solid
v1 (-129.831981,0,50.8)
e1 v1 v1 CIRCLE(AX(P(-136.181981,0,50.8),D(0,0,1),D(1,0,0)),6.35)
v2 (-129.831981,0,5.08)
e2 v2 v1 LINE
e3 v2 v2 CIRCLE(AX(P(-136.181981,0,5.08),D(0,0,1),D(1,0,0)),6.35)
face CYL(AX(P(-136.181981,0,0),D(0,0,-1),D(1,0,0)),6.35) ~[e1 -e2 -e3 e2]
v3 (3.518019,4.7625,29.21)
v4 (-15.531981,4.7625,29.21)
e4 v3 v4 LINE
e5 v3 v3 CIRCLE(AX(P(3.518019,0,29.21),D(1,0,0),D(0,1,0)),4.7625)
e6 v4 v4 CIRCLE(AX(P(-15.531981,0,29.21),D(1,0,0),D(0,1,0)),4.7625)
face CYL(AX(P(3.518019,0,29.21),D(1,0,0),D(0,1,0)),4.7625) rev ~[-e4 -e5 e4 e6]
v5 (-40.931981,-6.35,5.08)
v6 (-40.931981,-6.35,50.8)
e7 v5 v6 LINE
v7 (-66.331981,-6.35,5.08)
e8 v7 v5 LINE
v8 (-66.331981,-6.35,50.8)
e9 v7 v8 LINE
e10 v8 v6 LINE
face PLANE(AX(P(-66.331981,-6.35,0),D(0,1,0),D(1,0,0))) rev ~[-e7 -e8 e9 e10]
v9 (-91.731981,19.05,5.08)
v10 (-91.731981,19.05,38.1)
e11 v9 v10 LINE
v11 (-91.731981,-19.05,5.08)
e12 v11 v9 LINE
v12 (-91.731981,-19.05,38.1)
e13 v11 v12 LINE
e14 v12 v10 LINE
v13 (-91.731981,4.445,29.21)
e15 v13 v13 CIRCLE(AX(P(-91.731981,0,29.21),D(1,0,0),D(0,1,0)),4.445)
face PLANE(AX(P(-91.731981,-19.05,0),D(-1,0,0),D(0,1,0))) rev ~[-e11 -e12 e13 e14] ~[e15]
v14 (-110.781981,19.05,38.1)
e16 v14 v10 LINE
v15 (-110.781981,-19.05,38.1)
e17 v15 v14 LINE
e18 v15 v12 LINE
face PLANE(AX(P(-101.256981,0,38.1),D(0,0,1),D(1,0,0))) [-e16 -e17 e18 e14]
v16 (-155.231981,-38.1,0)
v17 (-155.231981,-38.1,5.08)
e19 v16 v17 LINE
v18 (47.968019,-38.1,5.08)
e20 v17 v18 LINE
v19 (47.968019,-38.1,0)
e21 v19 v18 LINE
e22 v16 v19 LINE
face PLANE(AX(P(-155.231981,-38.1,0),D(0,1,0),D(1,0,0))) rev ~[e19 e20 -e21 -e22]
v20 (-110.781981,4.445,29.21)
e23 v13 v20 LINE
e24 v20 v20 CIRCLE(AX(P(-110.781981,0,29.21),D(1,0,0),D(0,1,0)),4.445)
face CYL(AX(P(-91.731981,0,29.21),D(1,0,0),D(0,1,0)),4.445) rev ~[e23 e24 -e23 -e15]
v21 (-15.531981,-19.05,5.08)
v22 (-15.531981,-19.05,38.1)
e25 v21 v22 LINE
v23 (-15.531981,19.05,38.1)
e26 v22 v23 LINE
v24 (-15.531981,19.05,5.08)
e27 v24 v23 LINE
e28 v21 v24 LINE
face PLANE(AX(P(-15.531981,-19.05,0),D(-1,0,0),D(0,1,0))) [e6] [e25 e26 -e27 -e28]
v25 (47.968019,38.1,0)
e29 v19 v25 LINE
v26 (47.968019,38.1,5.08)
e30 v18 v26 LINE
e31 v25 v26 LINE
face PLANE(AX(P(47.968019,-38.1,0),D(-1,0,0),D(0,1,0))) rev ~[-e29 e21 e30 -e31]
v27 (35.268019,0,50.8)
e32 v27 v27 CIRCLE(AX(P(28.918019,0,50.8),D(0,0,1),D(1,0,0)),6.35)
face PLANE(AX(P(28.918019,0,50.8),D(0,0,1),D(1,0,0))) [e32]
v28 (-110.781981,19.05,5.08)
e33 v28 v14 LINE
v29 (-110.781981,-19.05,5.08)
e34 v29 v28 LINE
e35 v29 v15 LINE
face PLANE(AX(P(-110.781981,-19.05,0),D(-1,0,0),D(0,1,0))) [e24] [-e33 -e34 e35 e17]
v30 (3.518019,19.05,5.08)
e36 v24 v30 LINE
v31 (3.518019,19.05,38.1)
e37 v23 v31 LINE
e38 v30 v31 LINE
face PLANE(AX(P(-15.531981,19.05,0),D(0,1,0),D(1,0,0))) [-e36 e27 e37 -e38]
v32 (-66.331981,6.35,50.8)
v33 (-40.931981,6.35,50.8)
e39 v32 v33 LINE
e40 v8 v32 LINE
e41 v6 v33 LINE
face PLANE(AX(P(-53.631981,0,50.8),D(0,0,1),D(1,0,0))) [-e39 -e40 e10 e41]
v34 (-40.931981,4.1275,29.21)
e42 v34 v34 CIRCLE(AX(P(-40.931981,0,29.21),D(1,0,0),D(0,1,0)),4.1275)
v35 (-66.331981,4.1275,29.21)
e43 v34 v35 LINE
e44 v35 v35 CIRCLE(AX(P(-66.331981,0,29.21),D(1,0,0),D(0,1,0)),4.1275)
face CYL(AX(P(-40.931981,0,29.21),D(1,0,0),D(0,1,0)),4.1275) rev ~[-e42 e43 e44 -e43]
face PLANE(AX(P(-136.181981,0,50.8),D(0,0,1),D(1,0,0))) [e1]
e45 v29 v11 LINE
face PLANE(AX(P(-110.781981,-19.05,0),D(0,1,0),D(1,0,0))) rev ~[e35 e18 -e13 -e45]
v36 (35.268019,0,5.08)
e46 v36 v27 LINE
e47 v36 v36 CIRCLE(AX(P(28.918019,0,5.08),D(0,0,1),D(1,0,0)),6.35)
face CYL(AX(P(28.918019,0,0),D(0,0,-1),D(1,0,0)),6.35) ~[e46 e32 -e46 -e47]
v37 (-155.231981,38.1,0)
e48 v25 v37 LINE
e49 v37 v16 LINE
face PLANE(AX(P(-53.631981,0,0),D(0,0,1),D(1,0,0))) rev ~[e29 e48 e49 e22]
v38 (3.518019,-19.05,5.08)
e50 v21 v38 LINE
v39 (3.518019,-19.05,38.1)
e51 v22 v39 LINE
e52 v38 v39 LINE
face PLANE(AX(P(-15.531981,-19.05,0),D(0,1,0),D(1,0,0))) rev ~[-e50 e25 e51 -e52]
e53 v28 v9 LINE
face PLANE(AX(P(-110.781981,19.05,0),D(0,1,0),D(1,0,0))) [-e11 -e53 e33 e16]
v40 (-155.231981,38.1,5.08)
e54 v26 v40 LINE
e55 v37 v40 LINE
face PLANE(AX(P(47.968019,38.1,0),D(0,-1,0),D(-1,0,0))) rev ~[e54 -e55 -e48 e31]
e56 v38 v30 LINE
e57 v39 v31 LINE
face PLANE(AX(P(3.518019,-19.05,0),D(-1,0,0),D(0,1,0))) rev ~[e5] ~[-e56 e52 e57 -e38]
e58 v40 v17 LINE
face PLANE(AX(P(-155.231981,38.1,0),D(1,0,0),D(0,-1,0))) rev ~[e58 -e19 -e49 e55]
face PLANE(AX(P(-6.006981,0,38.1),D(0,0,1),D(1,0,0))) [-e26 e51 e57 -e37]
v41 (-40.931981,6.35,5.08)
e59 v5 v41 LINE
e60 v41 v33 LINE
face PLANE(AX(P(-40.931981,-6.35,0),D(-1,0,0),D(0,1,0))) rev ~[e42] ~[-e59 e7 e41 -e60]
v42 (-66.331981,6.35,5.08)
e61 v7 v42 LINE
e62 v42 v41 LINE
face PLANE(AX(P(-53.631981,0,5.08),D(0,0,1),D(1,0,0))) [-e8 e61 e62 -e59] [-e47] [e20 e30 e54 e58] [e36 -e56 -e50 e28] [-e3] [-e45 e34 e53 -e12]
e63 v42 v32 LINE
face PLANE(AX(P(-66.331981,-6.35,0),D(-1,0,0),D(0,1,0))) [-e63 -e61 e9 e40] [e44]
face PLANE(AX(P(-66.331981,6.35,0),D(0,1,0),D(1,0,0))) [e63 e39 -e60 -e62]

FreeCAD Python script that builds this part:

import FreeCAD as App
import Part
import Sketcher

V = App.Vector
Q = App.Units.Quantity


def add_polygon(sketch, points):
    """Adds a closed chain of lines whose ends are joined by coincident constraints."""
    first, n = sketch.GeometryCount, len(points)
    for a, b in zip(points, points[1:] + points[:1]):
        sketch.addGeometry(Part.LineSegment(App.Vector(*a, 0), App.Vector(*b, 0)), False)
    for i in range(n):
        sketch.addConstraint(Sketcher.Constraint("Coincident", first + i, 2, first + (i + 1) % n, 1))

doc = App.newDocument("Part")
body = doc.addObject("PartDesign::Body", "Body")

sketch1 = body.newObject("Sketcher::SketchObject", "Sketch")
sketch1.AttachmentSupport = (doc.getObject("XY_Plane"), [""])
sketch1.MapMode = "FlatFace"
add_polygon(sketch1, [(-66, 6), (-66, -6), (-41, -6), (-41, 6)])
sketch1.addConstraint(Sketcher.Constraint("Vertical", 0))
sketch1.addConstraint(Sketcher.Constraint("Horizontal", 1))
sketch1.addConstraint(Sketcher.Constraint("Vertical", 2))
sketch1.addConstraint(Sketcher.Constraint("Horizontal", 3))
sketch1.addConstraint(Sketcher.Constraint("DistanceX", 1, 1, 1, 2, Q("1 in")))
sketch1.addConstraint(Sketcher.Constraint("DistanceY", 0, 2, 0, 1, Q("0.5 in")))
sketch1.addConstraint(Sketcher.Constraint("DistanceY", 0, 2, -1, 1, Q("0.25 in")))
sketch1.addConstraint(Sketcher.Constraint("DistanceX", 0, 2, -1, 1, 66.331981))
pad1 = body.newObject("PartDesign::Pad", "Pad")
pad1.Profile = sketch1
pad1.Length = Q("2 in")
body2 = doc.addObject("PartDesign::Body", "Body001")

sketch2 = body2.newObject("Sketcher::SketchObject", "Sketch001")
sketch2.AttachmentSupport = (doc.getObject("XY_Plane001"), [""])
sketch2.MapMode = "FlatFace"
sketch2.addGeometry(Part.Circle(V(29, 0, 0), V(0, 0, 1), 6), False)
sketch2.addConstraint(Sketcher.Constraint("PointOnObject", 0, 3, -1))
sketch2.addConstraint(Sketcher.Constraint("Diameter", 0, Q("0.5 in")))
sketch2.addConstraint(Sketcher.Constraint("DistanceX", -1, 1, 0, 3, 28.918019))
pad2 = body2.newObject("PartDesign::Pad", "Pad001")
pad2.Profile = sketch2
pad2.Length = Q("2 in")
body3 = doc.addObject("PartDesign::Body", "Body002")

sketch3 = body3.newObject("Sketcher::SketchObject", "Sketch002")
sketch3.AttachmentSupport = (doc.getObject("XY_Plane002"), [""])
sketch3.MapMode = "FlatFace"
sketch3.addGeometry(Part.Circle(V(-136, 0, 0), V(0, 0, 1), 6), False)
sketch3.addConstraint(Sketcher.Constraint("PointOnObject", 0, 3, -1))
sketch3.addConstraint(Sketcher.Constraint("Diameter", 0, Q("0.5 in")))
sketch3.addConstraint(Sketcher.Constraint("DistanceX", 0, 3, -1, 1, 136.181981))
pad3 = body3.newObject("PartDesign::Pad", "Pad002")
pad3.Profile = sketch3
pad3.Length = Q("2 in")
body4 = doc.addObject("PartDesign::Body", "Body003")

sketch4 = body4.newObject("Sketcher::SketchObject", "Sketch003")
sketch4.AttachmentSupport = (doc.getObject("XY_Plane003"), [""])
sketch4.MapMode = "FlatFace"
add_polygon(sketch4, [(-111, 19), (-111, -19), (-92, -19), (-92, 19)])
sketch4.addConstraint(Sketcher.Constraint("Vertical", 0))
sketch4.addConstraint(Sketcher.Constraint("Horizontal", 1))
sketch4.addConstraint(Sketcher.Constraint("Vertical", 2))
sketch4.addConstraint(Sketcher.Constraint("Horizontal", 3))
sketch4.addConstraint(Sketcher.Constraint("DistanceY", 0, 2, 0, 1, Q("1.5 in")))
sketch4.addConstraint(Sketcher.Constraint("DistanceX", 1, 1, 1, 2, Q("0.75 in")))
sketch4.addConstraint(Sketcher.Constraint("DistanceY", 0, 2, -1, 1, Q("0.75 in")))
sketch4.addConstraint(Sketcher.Constraint("DistanceX", 0, 2, -1, 1, 110.781981))
pad4 = body4.newObject("PartDesign::Pad", "Pad003")
pad4.Profile = sketch4
pad4.Length = Q("1.5 in")
body5 = doc.addObject("PartDesign::Body", "Body004")

sketch5 = body5.newObject("Sketcher::SketchObject", "Sketch004")
sketch5.AttachmentSupport = (doc.getObject("XY_Plane004"), [""])
sketch5.MapMode = "FlatFace"
add_polygon(sketch5, [(-16, 19), (-16, -19), (4, -19), (4, 19)])
sketch5.addConstraint(Sketcher.Constraint("Vertical", 0))
sketch5.addConstraint(Sketcher.Constraint("Horizontal", 1))
sketch5.addConstraint(Sketcher.Constraint("Vertical", 2))
sketch5.addConstraint(Sketcher.Constraint("Horizontal", 3))
sketch5.addConstraint(Sketcher.Constraint("DistanceY", 0, 2, 0, 1, Q("1.5 in")))
sketch5.addConstraint(Sketcher.Constraint("DistanceX", 1, 1, 1, 2, Q("0.75 in")))
sketch5.addConstraint(Sketcher.Constraint("DistanceY", 0, 2, -1, 1, Q("0.75 in")))
sketch5.addConstraint(Sketcher.Constraint("DistanceX", 0, 2, -1, 1, 15.531981))
pad5 = body5.newObject("PartDesign::Pad", "Pad004")
pad5.Profile = sketch5
pad5.Length = Q("1.5 in")
body.AllowCompound = True
doc.recompute()

boolean = body.newObject("PartDesign::Boolean", "Boolean")
boolean.Type = "Fuse"
boolean.addObjects([body2])
doc.recompute()

boolean2 = body.newObject("PartDesign::Boolean", "Boolean001")
boolean2.Type = "Fuse"
boolean2.addObjects([body3])
doc.recompute()

boolean3 = body.newObject("PartDesign::Boolean", "Boolean002")
boolean3.Type = "Fuse"
boolean3.addObjects([body4])
doc.recompute()

boolean4 = body.newObject("PartDesign::Boolean", "Boolean003")
boolean4.Type = "Fuse"
boolean4.addObjects([body5])

sketch6 = body.newObject("Sketcher::SketchObject", "Sketch005")
sketch6.AttachmentSupport = (doc.getObject("XY_Plane"), [""])
sketch6.MapMode = "FlatFace"
add_polygon(sketch6, [(48, 38), (-155, 38), (-155, -38), (48, -38)])
sketch6.addGeometry(Part.Circle(V(-136, 0, 0), V(0, 0, 1), 6), False)
add_polygon(sketch6, [(-92, -19), (-111, -19), (-111, 19), (-92, 19)])
add_polygon(sketch6, [(-41, -6), (-66, -6), (-66, 6), (-41, 6)])
add_polygon(sketch6, [(4, -19), (-16, -19), (-16, 19), (4, 19)])
sketch6.addGeometry(Part.Circle(V(29, 0, 0), V(0, 0, 1), 6), False)
sketch6.addConstraint(Sketcher.Constraint("Horizontal", 0))
sketch6.addConstraint(Sketcher.Constraint("Vertical", 1))
sketch6.addConstraint(Sketcher.Constraint("Horizontal", 2))
sketch6.addConstraint(Sketcher.Constraint("Vertical", 3))
sketch6.addConstraint(Sketcher.Constraint("Horizontal", 5))
sketch6.addConstraint(Sketcher.Constraint("Vertical", 6))
sketch6.addConstraint(Sketcher.Constraint("Horizontal", 7))
sketch6.addConstraint(Sketcher.Constraint("Vertical", 8))
sketch6.addConstraint(Sketcher.Constraint("Horizontal", 9))
sketch6.addConstraint(Sketcher.Constraint("Vertical", 10))
sketch6.addConstraint(Sketcher.Constraint("Horizontal", 11))
sketch6.addConstraint(Sketcher.Constraint("Vertical", 12))
sketch6.addConstraint(Sketcher.Constraint("Horizontal", 13))
sketch6.addConstraint(Sketcher.Constraint("Vertical", 14))
sketch6.addConstraint(Sketcher.Constraint("Horizontal", 15))
sketch6.addConstraint(Sketcher.Constraint("Vertical", 16))
sketch6.addConstraint(Sketcher.Constraint("Equal", 4, 17))
sketch6.addConstraint(Sketcher.Constraint("PointOnObject", 4, 3, -1))
sketch6.addConstraint(Sketcher.Constraint("PointOnObject", 17, 3, -1))
sketch6.addConstraint(Sketcher.Constraint("Horizontal", 8, 2, 13, 2))
sketch6.addConstraint(Sketcher.Constraint("Horizontal", 7, 2, 14, 2))
sketch6.addConstraint(Sketcher.Constraint("Equal", 7, 13))
sketch6.addConstraint(Sketcher.Constraint("Diameter", 4, Q("0.5 in")))
sketch6.addConstraint(Sketcher.Constraint("DistanceX", 0, 2, 0, 1, Q("8 in")))
sketch6.addConstraint(Sketcher.Constraint("DistanceX", 9, 2, 9, 1, Q("1 in")))
sketch6.addConstraint(Sketcher.Constraint("DistanceY", 1, 2, 1, 1, Q("3 in")))
sketch6.addConstraint(Sketcher.Constraint("DistanceY", 6, 1, 6, 2, Q("1.5 in")))
sketch6.addConstraint(Sketcher.Constraint("DistanceY", 10, 1, 10, 2, Q("0.5 in")))
sketch6.addConstraint(Sketcher.Constraint("DistanceX", 4, 3, 5, 2, Q("1 in")))
sketch6.addConstraint(Sketcher.Constraint("DistanceX", 8, 2, 9, 2, Q("1 in")))
sketch6.addConstraint(Sketcher.Constraint("DistanceY", 9, 2, 7, 2, Q("1 in")))
sketch6.addConstraint(Sketcher.Constraint("DistanceX", 12, 2, 13, 2, Q("1 in")))
sketch6.addConstraint(Sketcher.Constraint("DistanceX", 15, 2, 17, 3, Q("1 in")))
sketch6.addConstraint(Sketcher.Constraint("DistanceX", 5, 2, 5, 1, Q("0.75 in")))
sketch6.addConstraint(Sketcher.Constraint("DistanceY", -1, 1, 0, 2, Q("1.5 in")))
sketch6.addConstraint(Sketcher.Constraint("DistanceX", 0, 2, 7, 2, Q("2.5 in")))
sketch6.addConstraint(Sketcher.Constraint("DistanceY", 5, 2, -1, 1, Q("0.75 in")))
sketch6.addConstraint(Sketcher.Constraint("DistanceX", 4, 3, -1, 1, 136.181981))
pad6 = body.newObject("PartDesign::Pad", "Pad005")
pad6.Profile = sketch6
pad6.Length = Q("0.2 in")

sketch7 = body.newObject("Sketcher::SketchObject", "Sketch006")
sketch7.AttachmentSupport = (doc.getObject("YZ_Plane"), [""])
sketch7.MapMode = "FlatFace"
sketch7.AttachmentOffset = App.Placement(V(0, 0, 3.518019), App.Rotation())
sketch7.addGeometry(Part.Circle(V(0, 29.2, 0), V(0, 0, 1), 4.8), False)
sketch7.addConstraint(Sketcher.Constraint("PointOnObject", 0, 3, -2))
sketch7.addConstraint(Sketcher.Constraint("Diameter", 0, Q("0.375 in")))
sketch7.addConstraint(Sketcher.Constraint("DistanceY", -1, 1, 0, 3, Q("1.15 in")))
pocket1 = body.newObject("PartDesign::Pocket", "Pocket")
pocket1.Profile = sketch7
pocket1.Length = Q("1 in")

sketch8 = body.newObject("Sketcher::SketchObject", "Sketch007")
sketch8.AttachmentSupport = (doc.getObject("YZ_Plane"), [""])
sketch8.MapMode = "FlatFace"
sketch8.AttachmentOffset = App.Placement(V(0, 0, -40.931981), App.Rotation())
sketch8.addGeometry(Part.Circle(V(0, 29.2, 0), V(0, 0, 1), 4.1), False)
sketch8.addConstraint(Sketcher.Constraint("PointOnObject", 0, 3, -2))
sketch8.addConstraint(Sketcher.Constraint("Diameter", 0, Q("0.325 in")))
sketch8.addConstraint(Sketcher.Constraint("DistanceY", -1, 1, 0, 3, Q("1.15 in")))
pocket2 = body.newObject("PartDesign::Pocket", "Pocket001")
pocket2.Profile = sketch8
pocket2.Length = Q("1 in")

sketch9 = body.newObject("Sketcher::SketchObject", "Sketch008")
sketch9.AttachmentSupport = (doc.getObject("YZ_Plane"), [""])
sketch9.MapMode = "FlatFace"
sketch9.AttachmentOffset = App.Placement(V(0, 0, -91.731981), App.Rotation())
sketch9.addGeometry(Part.Circle(V(0, 29.2, 0), V(0, 0, 1), 4.4), False)
sketch9.addConstraint(Sketcher.Constraint("PointOnObject", 0, 3, -2))
sketch9.addConstraint(Sketcher.Constraint("Diameter", 0, Q("0.35 in")))
sketch9.addConstraint(Sketcher.Constraint("DistanceY", -1, 1, 0, 3, Q("1.15 in")))
pocket3 = body.newObject("PartDesign::Pocket", "Pocket002")
pocket3.Profile = sketch9
pocket3.Length = Q("1 in")

doc.recompute()
